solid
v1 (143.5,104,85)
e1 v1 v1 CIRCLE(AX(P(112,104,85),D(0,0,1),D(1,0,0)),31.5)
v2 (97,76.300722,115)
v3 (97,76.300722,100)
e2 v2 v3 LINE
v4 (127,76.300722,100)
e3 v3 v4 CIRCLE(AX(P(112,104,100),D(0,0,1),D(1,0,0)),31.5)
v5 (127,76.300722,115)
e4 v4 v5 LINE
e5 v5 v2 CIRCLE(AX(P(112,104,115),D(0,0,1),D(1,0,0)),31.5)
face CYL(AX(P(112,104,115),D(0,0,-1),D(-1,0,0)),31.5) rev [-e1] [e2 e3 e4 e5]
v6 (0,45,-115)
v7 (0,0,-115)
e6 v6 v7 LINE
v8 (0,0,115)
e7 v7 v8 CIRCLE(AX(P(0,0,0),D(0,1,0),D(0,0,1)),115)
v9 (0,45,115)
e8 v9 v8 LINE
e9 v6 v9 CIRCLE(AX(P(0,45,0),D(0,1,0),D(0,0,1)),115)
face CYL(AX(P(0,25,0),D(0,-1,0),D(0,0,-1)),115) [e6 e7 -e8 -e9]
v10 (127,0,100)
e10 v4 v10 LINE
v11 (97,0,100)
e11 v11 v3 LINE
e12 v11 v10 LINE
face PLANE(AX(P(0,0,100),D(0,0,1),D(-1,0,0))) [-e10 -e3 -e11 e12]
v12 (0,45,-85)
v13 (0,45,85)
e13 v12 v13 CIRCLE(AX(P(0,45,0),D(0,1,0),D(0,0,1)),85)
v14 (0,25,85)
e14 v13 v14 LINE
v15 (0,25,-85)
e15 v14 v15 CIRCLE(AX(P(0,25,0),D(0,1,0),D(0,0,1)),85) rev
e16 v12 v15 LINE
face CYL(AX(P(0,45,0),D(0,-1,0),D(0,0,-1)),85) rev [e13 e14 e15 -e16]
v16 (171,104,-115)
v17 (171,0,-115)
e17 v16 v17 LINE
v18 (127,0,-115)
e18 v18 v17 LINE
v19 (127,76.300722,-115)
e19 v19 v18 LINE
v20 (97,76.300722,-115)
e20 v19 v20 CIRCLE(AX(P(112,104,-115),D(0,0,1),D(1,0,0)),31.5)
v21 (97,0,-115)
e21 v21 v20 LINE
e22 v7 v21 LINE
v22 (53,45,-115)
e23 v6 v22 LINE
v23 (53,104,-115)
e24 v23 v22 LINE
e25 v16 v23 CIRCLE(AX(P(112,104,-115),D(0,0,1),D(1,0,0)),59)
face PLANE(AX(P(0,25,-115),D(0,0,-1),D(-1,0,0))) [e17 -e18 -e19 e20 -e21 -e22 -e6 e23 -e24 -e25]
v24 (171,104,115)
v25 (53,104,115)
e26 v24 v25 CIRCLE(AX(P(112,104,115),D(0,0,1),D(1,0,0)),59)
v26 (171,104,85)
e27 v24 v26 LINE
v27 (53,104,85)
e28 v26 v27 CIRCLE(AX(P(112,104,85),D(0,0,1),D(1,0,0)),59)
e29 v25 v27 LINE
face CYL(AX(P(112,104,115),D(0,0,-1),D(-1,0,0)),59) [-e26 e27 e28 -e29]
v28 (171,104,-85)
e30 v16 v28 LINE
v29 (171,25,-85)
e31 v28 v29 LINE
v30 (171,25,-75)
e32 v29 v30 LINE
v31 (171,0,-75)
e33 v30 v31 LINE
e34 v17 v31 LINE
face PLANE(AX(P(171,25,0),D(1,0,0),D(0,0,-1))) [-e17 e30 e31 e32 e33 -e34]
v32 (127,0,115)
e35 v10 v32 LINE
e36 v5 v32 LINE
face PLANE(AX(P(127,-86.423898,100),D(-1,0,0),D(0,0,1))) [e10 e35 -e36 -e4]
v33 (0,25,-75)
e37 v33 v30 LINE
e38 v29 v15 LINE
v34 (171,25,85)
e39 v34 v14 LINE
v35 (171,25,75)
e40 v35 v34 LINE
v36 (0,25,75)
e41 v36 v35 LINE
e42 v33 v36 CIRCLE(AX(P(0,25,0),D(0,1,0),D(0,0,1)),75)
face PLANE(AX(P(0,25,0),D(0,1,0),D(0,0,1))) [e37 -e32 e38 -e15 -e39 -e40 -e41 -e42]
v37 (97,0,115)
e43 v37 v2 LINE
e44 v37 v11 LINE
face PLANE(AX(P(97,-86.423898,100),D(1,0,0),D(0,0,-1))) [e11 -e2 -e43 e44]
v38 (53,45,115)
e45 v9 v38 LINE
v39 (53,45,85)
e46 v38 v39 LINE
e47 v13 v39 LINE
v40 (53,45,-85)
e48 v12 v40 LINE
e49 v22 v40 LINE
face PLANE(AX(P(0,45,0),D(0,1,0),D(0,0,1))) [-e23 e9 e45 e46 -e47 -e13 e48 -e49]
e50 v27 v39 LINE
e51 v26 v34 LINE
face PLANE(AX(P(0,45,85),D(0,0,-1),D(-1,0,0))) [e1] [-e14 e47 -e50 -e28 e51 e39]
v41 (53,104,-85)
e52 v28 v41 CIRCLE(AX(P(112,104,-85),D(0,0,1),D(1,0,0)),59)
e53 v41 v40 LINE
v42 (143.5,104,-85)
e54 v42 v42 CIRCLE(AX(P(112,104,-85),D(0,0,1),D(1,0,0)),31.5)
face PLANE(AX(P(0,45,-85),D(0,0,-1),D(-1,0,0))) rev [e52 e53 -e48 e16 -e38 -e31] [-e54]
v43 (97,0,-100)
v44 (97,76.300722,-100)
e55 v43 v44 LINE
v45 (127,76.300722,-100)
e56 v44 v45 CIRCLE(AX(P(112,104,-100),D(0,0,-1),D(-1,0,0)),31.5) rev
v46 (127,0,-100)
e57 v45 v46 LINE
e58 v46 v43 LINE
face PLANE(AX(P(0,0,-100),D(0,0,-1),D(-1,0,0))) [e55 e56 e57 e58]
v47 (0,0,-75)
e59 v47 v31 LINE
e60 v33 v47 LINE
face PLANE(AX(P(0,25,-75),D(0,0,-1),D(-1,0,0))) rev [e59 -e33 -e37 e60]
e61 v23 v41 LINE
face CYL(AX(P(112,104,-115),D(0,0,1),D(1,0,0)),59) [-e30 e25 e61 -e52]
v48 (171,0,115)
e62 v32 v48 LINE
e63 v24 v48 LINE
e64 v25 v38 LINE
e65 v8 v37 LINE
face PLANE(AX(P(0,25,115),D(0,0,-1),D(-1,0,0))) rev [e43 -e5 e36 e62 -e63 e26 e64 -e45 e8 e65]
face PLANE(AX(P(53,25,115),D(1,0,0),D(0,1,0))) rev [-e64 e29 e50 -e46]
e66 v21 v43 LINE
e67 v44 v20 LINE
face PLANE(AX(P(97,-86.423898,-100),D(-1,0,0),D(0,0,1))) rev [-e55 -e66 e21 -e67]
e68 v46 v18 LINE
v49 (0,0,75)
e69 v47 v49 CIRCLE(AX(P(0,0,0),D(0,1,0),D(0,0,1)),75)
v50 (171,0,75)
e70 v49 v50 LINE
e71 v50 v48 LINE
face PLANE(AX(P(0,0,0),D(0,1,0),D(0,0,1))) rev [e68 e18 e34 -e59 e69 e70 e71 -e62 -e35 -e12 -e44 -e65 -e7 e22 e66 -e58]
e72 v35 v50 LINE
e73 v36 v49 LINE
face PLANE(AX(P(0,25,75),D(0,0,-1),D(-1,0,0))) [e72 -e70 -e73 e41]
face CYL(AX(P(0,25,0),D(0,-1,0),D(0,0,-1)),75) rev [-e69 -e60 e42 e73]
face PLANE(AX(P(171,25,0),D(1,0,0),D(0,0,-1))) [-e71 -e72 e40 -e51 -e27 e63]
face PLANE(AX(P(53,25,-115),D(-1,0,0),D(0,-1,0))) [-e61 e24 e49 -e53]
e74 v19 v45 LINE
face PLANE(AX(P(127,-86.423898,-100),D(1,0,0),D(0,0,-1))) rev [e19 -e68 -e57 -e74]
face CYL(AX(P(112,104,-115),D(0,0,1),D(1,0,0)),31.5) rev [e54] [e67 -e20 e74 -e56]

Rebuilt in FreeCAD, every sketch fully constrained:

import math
import FreeCAD as App
import Part
import Sketcher


def add_polygon(sketch, points):
    """Adds a closed chain of lines whose ends are joined by coincident constraints."""
    first, n = sketch.GeometryCount, len(points)
    for a, b in zip(points, points[1:] + points[:1]):
        sketch.addGeometry(Part.LineSegment(App.Vector(*a, 0), App.Vector(*b, 0)), False)
    for i in range(n):
        sketch.addConstraint(Sketcher.Constraint("Coincident", first + i, 2, first + (i + 1) % n, 1))

doc = App.newDocument("Part")
params = doc.addObject("Spreadsheet::Sheet", "Params")
for row, (alias, value) in enumerate([
    ("sketch1_radius", "115 mm"),
    ("sketch1_radius2", "75 mm"),
    ("sketch1_width", "171 mm"),
    ("pad1_length", "25 mm"),
    ("sketch2_radius", "85 mm"),
    ("sketch2_radius2", "115 mm"),
    ("sketch2_width", "171 mm"),
    ("pad2_length", "45 mm"),
    ("sketch3_diameter", "63 mm"),
    ("sketch3_radius", "59 mm"),
    ("sketch3_height", "79 mm"),
    ("pad3_length", "30 mm"),
    ("sketch4_width", "30 mm"),
    ("pocket1_length", "15 mm"),
], start=1):
    params.set(f"A{row}", alias)
    params.set(f"B{row}", "=" + value)
    params.setAlias(f"B{row}", alias)

body = doc.addObject("PartDesign::Body", "Body")

# Sketch on XZ plane
sketch1 = body.newObject("Sketcher::SketchObject", "Sketch")
sketch1.AttachmentSupport = (doc.getObject("XZ_Plane"), [""])
sketch1.MapMode = "FlatFace"
sketch1.addGeometry([
    Part.LineSegment(App.Vector(171, -115, 0), App.Vector(0, -115, 0)),  # 0
    Part.ArcOfCircle(Part.Circle(App.Vector(0, 0, 0), App.Vector(0, 0, 1), 115), math.radians(90), math.radians(270)),  # 1
    Part.LineSegment(App.Vector(0, 115, 0), App.Vector(171, 115, 0)),  # 2
    Part.LineSegment(App.Vector(171, 115, 0), App.Vector(171, 75, 0)),  # 3
    Part.LineSegment(App.Vector(171, 75, 0), App.Vector(0, 75, 0)),  # 4
    Part.ArcOfCircle(Part.Circle(App.Vector(0, 0, 0), App.Vector(0, 0, 1), 75), math.radians(90), math.radians(270)),  # 5
    Part.LineSegment(App.Vector(0, -75, 0), App.Vector(171, -75, 0)),  # 6
    Part.LineSegment(App.Vector(171, -75, 0), App.Vector(171, -115, 0)),  # 7
], False)
sketch1.addConstraint([
    Sketcher.Constraint("Tangent", 0, 2, 1, 2),
    Sketcher.Constraint("Tangent", 1, 1, 2, 1),
    Sketcher.Constraint("Coincident", 2, 2, 3, 1),
    Sketcher.Constraint("Coincident", 3, 2, 4, 1),
    Sketcher.Constraint("Tangent", 4, 2, 5, 1),
    Sketcher.Constraint("Tangent", 5, 2, 6, 1),
    Sketcher.Constraint("Coincident", 6, 2, 7, 1),
    Sketcher.Constraint("Coincident", 7, 2, 0, 1),
    Sketcher.Constraint("Horizontal", 0),
    Sketcher.Constraint("Horizontal", 2),
    Sketcher.Constraint("Vertical", 3),
    Sketcher.Constraint("Horizontal", 4),
    Sketcher.Constraint("Horizontal", 6),
    Sketcher.Constraint("Vertical", 7),
    Sketcher.Constraint("Coincident", 1, 3, -1, 1),
    Sketcher.Constraint("Coincident", 5, 3, -1, 1),
    Sketcher.Constraint("Vertical", 3, 2, 6, 2),
    Sketcher.Constraint("Radius", 1, 115.0),
    Sketcher.Constraint("Radius", 5, 75.0),
    Sketcher.Constraint("DistanceX", 0, 2, 0, 1, 171.0),
])
sketch1.setExpression("Constraints[17]", "Params.sketch1_radius")
sketch1.setExpression("Constraints[18]", "Params.sketch1_radius2")
sketch1.setExpression("Constraints[19]", "Params.sketch1_width")
pad1 = body.newObject("PartDesign::Pad", "Pad")
pad1.Profile = sketch1
pad1.setExpression("Length", "Params.pad1_length")
pad1.Reversed = True

# Sketch on XZ plane
sketch2 = body.newObject("Sketcher::SketchObject", "Sketch001")
sketch2.AttachmentSupport = (doc.getObject("XZ_Plane"), [""])
sketch2.MapMode = "FlatFace"
sketch2.addGeometry([
    Part.ArcOfCircle(Part.Circle(App.Vector(0, 0, 0), App.Vector(0, 0, 1), 85), math.radians(90), math.radians(270)),  # 0
    Part.LineSegment(App.Vector(0, -85, 0), App.Vector(171, -85, 0)),  # 1
    Part.LineSegment(App.Vector(171, -85, 0), App.Vector(171, -115, 0)),  # 2
    Part.LineSegment(App.Vector(171, -115, 0), App.Vector(0, -115, 0)),  # 3
    Part.ArcOfCircle(Part.Circle(App.Vector(0, 0, 0), App.Vector(0, 0, 1), 115), math.radians(90), math.radians(270)),  # 4
    Part.LineSegment(App.Vector(0, 115, 0), App.Vector(171, 115, 0)),  # 5
    Part.LineSegment(App.Vector(171, 115, 0), App.Vector(171, 85, 0)),  # 6
    Part.LineSegment(App.Vector(171, 85, 0), App.Vector(0, 85, 0)),  # 7
], False)
sketch2.addConstraint([
    Sketcher.Constraint("Tangent", 0, 2, 1, 1),
    Sketcher.Constraint("Coincident", 1, 2, 2, 1),
    Sketcher.Constraint("Coincident", 2, 2, 3, 1),
    Sketcher.Constraint("Tangent", 3, 2, 4, 2),
    Sketcher.Constraint("Tangent", 4, 1, 5, 1),
    Sketcher.Constraint("Coincident", 5, 2, 6, 1),
    Sketcher.Constraint("Coincident", 6, 2, 7, 1),
    Sketcher.Constraint("Tangent", 7, 2, 0, 1),
    Sketcher.Constraint("Horizontal", 1),
    Sketcher.Constraint("Vertical", 2),
    Sketcher.Constraint("Horizontal", 3),
    Sketcher.Constraint("Horizontal", 5),
    Sketcher.Constraint("Vertical", 6),
    Sketcher.Constraint("Horizontal", 7),
    Sketcher.Constraint("Coincident", 0, 3, -1, 1),
    Sketcher.Constraint("Coincident", 4, 3, -1, 1),
    Sketcher.Constraint("Vertical", 2, 2, 5, 2),
    Sketcher.Constraint("Radius", 0, 85.0),
    Sketcher.Constraint("Radius", 4, 115.0),
    Sketcher.Constraint("DistanceX", 1, 1, 1, 2, 171.0),
])
sketch2.setExpression("Constraints[17]", "Params.sketch2_radius")
sketch2.setExpression("Constraints[18]", "Params.sketch2_radius2")
sketch2.setExpression("Constraints[19]", "Params.sketch2_width")
pad2 = body.newObject("PartDesign::Pad", "Pad001")
pad2.Profile = sketch2
pad2.setExpression("Length", "Params.pad2_length")
pad2.Reversed = True

# Sketch on XY plane
sketch3 = body.newObject("Sketcher::SketchObject", "Sketch002")
sketch3.AttachmentSupport = (doc.getObject("XY_Plane"), [""])
sketch3.MapMode = "FlatFace"
sketch3.AttachmentOffset = App.Placement(App.Vector(0, 0, -85), App.Rotation())
sketch3.addGeometry([
    Part.LineSegment(App.Vector(53, 25, 0), App.Vector(171, 25, 0)),  # 0
    Part.LineSegment(App.Vector(171, 25, 0), App.Vector(171, 104, 0)),  # 1
    Part.ArcOfCircle(Part.Circle(App.Vector(112, 104, 0), App.Vector(0, 0, 1), 59), math.radians(0), math.radians(180)),  # 2
    Part.LineSegment(App.Vector(53, 104, 0), App.Vector(53, 25, 0)),  # 3
    Part.Circle(App.Vector(112, 104, 0), App.Vector(0, 0, 1), 32),  # 4
], False)
sketch3.addConstraint([
    Sketcher.Constraint("Coincident", 0, 2, 1, 1),
    Sketcher.Constraint("Tangent", 1, 2, 2, 1),
    Sketcher.Constraint("Tangent", 2, 2, 3, 1),
    Sketcher.Constraint("Coincident", 3, 2, 0, 1),
    Sketcher.Constraint("Horizontal", 0),
    Sketcher.Constraint("Vertical", 1),
    Sketcher.Constraint("Vertical", 3),
    Sketcher.Constraint("Coincident", 4, 3, 2, 3),
    Sketcher.Constraint("Diameter", 4, 63.0),
    Sketcher.Constraint("Radius", 2, 59.0),
    Sketcher.Constraint("DistanceY", 1, 1, 1, 2, 79.0),
    Sketcher.Constraint("DistanceX", -1, 1, 2, 3, 112.0),
    Sketcher.Constraint("DistanceY", -1, 1, 2, 3, 104.0),
])
sketch3.setExpression("Constraints[8]", "Params.sketch3_diameter")
sketch3.setExpression("Constraints[9]", "Params.sketch3_radius")
sketch3.setExpression("Constraints[10]", "Params.sketch3_height")
pad3 = body.newObject("PartDesign::Pad", "Pad002")
pad3.Profile = sketch3
pad3.setExpression("Length", "Params.pad3_length")
pad3.Reversed = True

# Sketch on XY plane
sketch4 = body.newObject("Sketcher::SketchObject", "Sketch003")
sketch4.AttachmentSupport = (doc.getObject("XY_Plane"), [""])
sketch4.MapMode = "FlatFace"
sketch4.AttachmentOffset = App.Placement(App.Vector(0, 0, -115), App.Rotation())
add_polygon(sketch4, [(127, 86), (127, -86), (97, -86), (97, 86)])  # lines 0-3
sketch4.addConstraint([
    Sketcher.Constraint("Vertical", 0),
    Sketcher.Constraint("Horizontal", 1),
    Sketcher.Constraint("Vertical", 2),
    Sketcher.Constraint("Horizontal", 3),
    Sketcher.Constraint("DistanceX", 1, 2, 1, 1, 30.0),
    Sketcher.Constraint("DistanceX", -1, 1, 0, 2, 127.0),
    Sketcher.Constraint("DistanceY", 0, 2, 0, 1, 172.847795),
    Sketcher.Constraint("DistanceY", 0, 2, -1, 1, 86.423898),
])
sketch4.setExpression("Constraints[8]", "Params.sketch4_width")
pocket1 = body.newObject("PartDesign::Pocket", "Pocket")
pocket1.Profile = sketch4
pocket1.setExpression("Length", "Params.pocket1_length")
pocket1.Reversed = True
doc.recompute()

mirrored = body.newObject("PartDesign::Mirrored", "Mirrored")
mirrored.Originals = [pad3, pocket1]
mirrored.MirrorPlane = (doc.getObject("XY_Plane"), [""])
body.Tip = mirrored

doc.recompute()
